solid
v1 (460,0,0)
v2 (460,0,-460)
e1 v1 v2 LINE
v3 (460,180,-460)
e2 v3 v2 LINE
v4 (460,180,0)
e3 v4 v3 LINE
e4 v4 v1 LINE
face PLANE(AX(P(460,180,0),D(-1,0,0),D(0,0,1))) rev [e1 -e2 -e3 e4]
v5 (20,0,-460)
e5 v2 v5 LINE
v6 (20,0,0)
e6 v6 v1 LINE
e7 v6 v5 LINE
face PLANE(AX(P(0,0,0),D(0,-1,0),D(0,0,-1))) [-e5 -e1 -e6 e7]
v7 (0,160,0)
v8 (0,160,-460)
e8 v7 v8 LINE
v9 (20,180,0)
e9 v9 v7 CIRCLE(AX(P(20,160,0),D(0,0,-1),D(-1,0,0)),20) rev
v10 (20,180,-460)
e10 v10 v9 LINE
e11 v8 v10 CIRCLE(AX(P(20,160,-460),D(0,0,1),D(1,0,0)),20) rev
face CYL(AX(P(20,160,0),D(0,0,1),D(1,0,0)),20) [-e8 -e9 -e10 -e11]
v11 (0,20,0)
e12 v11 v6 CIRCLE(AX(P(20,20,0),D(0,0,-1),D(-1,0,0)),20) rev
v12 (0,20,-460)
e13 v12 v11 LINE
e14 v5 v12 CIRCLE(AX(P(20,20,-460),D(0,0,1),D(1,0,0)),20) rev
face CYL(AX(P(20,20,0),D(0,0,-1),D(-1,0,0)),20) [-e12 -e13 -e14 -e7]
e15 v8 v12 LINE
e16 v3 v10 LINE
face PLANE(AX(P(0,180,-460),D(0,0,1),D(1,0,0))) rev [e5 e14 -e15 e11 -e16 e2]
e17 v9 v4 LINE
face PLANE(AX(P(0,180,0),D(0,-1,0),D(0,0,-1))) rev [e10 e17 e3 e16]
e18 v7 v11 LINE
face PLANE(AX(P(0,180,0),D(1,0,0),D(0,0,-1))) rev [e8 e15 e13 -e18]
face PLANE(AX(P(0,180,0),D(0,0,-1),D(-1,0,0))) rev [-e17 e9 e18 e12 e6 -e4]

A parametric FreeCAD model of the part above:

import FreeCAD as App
import Part
import Sketcher

V = App.Vector
Q = App.Units.Quantity


def edges_at(feature, points):
    """Names of the edges that pass closest to the given points."""
    edges = feature.Shape.Edges
    near = lambda p: min(range(len(edges)), key=lambda i: edges[i].distToShape(Part.Vertex(*p))[0])
    return sorted({f"Edge{near(p) + 1}" for p in points})


def add_polygon(sketch, points):
    """Adds a closed chain of lines whose ends are joined by coincident constraints."""
    first, n = sketch.GeometryCount, len(points)
    for a, b in zip(points, points[1:] + points[:1]):
        sketch.addGeometry(Part.LineSegment(App.Vector(*a, 0), App.Vector(*b, 0)), False)
    for i in range(n):
        sketch.addConstraint(Sketcher.Constraint("Coincident", first + i, 2, first + (i + 1) % n, 1))

doc = App.newDocument("Part")
body = doc.addObject("PartDesign::Body", "Body")

sketch1 = doc.addObject("Sketcher::SketchObject", "Sketch")
body.addObject(sketch1)
sketch1.AttachmentSupport = (doc.XZ_Plane, [""])
sketch1.MapMode = "FlatFace"
add_polygon(sketch1, [(0, -460), (0, 0), (460, 0), (460, -460)])
sketch1.addConstraint(Sketcher.Constraint("Vertical", 0))
sketch1.addConstraint(Sketcher.Constraint("Horizontal", 1))
sketch1.addConstraint(Sketcher.Constraint("Vertical", 2))
sketch1.addConstraint(Sketcher.Constraint("Horizontal", 3))
sketch1.addConstraint(Sketcher.Constraint("Coincident", 0, 2, -1, 1))
sketch1.addConstraint(Sketcher.Constraint("Equal", 3, 0))
sketch1.addConstraint(Sketcher.Constraint("DistanceX", 1, 1, 1, 2, Q("460 mm")))
pad1 = doc.addObject("PartDesign::Pad", "Pad")
body.addObject(pad1)
pad1.Profile = sketch1
pad1.Length = 180
pad1.Reversed = True
doc.recompute()

fillet = doc.addObject("PartDesign::Fillet", "Fillet")
body.addObject(fillet)
fillet.Base = (pad1, edges_at(pad1, [(0, 180, -230), (0, 0, -230)]))
fillet.Radius = 20

doc.recompute()
